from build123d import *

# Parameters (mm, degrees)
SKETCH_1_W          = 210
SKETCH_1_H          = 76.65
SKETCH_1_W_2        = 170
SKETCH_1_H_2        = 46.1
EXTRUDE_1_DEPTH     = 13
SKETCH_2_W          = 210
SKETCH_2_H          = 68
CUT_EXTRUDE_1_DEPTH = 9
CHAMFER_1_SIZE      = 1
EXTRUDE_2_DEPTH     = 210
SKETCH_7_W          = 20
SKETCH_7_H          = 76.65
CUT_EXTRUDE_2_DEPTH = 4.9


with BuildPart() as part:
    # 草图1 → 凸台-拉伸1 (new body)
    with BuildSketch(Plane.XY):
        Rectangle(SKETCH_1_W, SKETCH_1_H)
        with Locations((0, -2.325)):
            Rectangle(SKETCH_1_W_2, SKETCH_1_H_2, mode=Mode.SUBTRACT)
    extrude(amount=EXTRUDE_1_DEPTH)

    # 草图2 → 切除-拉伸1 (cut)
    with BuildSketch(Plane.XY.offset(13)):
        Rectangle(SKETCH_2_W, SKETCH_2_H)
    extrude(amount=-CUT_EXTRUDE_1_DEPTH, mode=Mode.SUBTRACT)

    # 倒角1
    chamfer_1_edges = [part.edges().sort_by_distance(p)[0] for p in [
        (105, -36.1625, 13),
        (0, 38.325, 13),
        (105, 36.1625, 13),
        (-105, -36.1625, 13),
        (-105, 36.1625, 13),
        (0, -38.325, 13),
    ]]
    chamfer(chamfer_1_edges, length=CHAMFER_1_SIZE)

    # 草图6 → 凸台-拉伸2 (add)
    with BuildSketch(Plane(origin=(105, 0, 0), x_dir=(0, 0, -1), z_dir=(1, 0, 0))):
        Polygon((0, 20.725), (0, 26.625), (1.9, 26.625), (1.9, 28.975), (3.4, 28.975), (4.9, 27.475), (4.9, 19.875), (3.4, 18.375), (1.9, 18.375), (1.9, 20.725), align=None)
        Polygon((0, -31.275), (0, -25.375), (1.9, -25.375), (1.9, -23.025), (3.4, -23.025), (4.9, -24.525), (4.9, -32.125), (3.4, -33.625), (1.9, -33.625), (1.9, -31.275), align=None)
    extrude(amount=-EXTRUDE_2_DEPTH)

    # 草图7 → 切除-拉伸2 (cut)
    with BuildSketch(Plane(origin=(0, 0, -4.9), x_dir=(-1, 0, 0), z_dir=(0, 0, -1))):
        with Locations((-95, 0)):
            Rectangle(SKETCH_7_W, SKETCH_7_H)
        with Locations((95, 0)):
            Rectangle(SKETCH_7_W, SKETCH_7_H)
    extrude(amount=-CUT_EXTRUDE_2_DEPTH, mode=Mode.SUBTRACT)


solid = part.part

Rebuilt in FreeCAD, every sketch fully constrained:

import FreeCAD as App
import Part
import Sketcher
Q = App.Units.Quantity


def edges_at(feature, points):
    """Names of the edges that pass closest to the given points."""
    edges = feature.Shape.Edges
    near = lambda p: min(range(len(edges)), key=lambda i: edges[i].distToShape(Part.Vertex(*p))[0])
    return sorted({f"Edge{near(p) + 1}" for p in points})

doc = App.newDocument("Part")
body = doc.addObject("PartDesign::Body", "Body")

# Sketch on XY plane
sketch1 = doc.addObject("Sketcher::SketchObject", "Sketch")
body.addObject(sketch1)
sketch1.AttachmentSupport = (doc.XY_Plane, [""])
sketch1.MapMode = "FlatFace"
sketch1.addGeometry(Part.LineSegment(App.Vector(-105, 38, 0), App.Vector(-105, -38, 0)), False)
sketch1.addGeometry(Part.LineSegment(App.Vector(-105, -38, 0), App.Vector(105, -38, 0)), False)
sketch1.addGeometry(Part.LineSegment(App.Vector(105, -38, 0), App.Vector(105, 38, 0)), False)
sketch1.addGeometry(Part.LineSegment(App.Vector(105, 38, 0), App.Vector(-105, 38, 0)), False)
sketch1.addGeometry(Part.LineSegment(App.Vector(85, -25, 0), App.Vector(-85, -25, 0)), False)
sketch1.addGeometry(Part.LineSegment(App.Vector(-85, -25, 0), App.Vector(-85, 21, 0)), False)
sketch1.addGeometry(Part.LineSegment(App.Vector(-85, 21, 0), App.Vector(85, 21, 0)), False)
sketch1.addGeometry(Part.LineSegment(App.Vector(85, 21, 0), App.Vector(85, -25, 0)), False)
sketch1.addConstraint(Sketcher.Constraint("Coincident", 0, 2, 1, 1))
sketch1.addConstraint(Sketcher.Constraint("Coincident", 1, 2, 2, 1))
sketch1.addConstraint(Sketcher.Constraint("Coincident", 2, 2, 3, 1))
sketch1.addConstraint(Sketcher.Constraint("Coincident", 3, 2, 0, 1))
sketch1.addConstraint(Sketcher.Constraint("Coincident", 4, 2, 5, 1))
sketch1.addConstraint(Sketcher.Constraint("Coincident", 5, 2, 6, 1))
sketch1.addConstraint(Sketcher.Constraint("Coincident", 6, 2, 7, 1))
sketch1.addConstraint(Sketcher.Constraint("Coincident", 7, 2, 4, 1))
sketch1.addConstraint(Sketcher.Constraint("Vertical", 0))
sketch1.addConstraint(Sketcher.Constraint("Horizontal", 1))
sketch1.addConstraint(Sketcher.Constraint("Vertical", 2))
sketch1.addConstraint(Sketcher.Constraint("Horizontal", 3))
sketch1.addConstraint(Sketcher.Constraint("Horizontal", 4))
sketch1.addConstraint(Sketcher.Constraint("Vertical", 5))
sketch1.addConstraint(Sketcher.Constraint("Horizontal", 6))
sketch1.addConstraint(Sketcher.Constraint("Vertical", 7))
sketch1.addConstraint(Sketcher.Constraint("Symmetric", 0, 2, 2, 2, -1, 1))
sketch1.addConstraint(Sketcher.Constraint("DistanceX", 1, 1, 1, 2, Q("210 mm")))
sketch1.addConstraint(Sketcher.Constraint("DistanceX", 4, 2, 4, 1, Q("170 mm")))
sketch1.addConstraint(Sketcher.Constraint("DistanceY", 5, 1, 5, 2, Q("46.1 mm")))
sketch1.addConstraint(Sketcher.Constraint("DistanceX", 4, 2, -1, 1, Q("85 mm")))
sketch1.addConstraint(Sketcher.Constraint("DistanceY", 0, 2, 0, 1, Q("76.65 mm")))
sketch1.addConstraint(Sketcher.Constraint("DistanceY", 4, 2, 3, 2, Q("63.7 mm")))
pad1 = doc.addObject("PartDesign::Pad", "Pad")
body.addObject(pad1)
pad1.Profile = sketch1
pad1.Length = 13

# Sketch on XY plane
sketch2 = doc.addObject("Sketcher::SketchObject", "Sketch001")
body.addObject(sketch2)
sketch2.AttachmentSupport = (doc.XY_Plane, [""])
sketch2.MapMode = "FlatFace"
sketch2.AttachmentOffset = App.Placement(App.Vector(0, 0, 13), App.Rotation())
sketch2.addGeometry(Part.LineSegment(App.Vector(-105, 34, 0), App.Vector(-105, -34, 0)), False)
sketch2.addGeometry(Part.LineSegment(App.Vector(-105, -34, 0), App.Vector(105, -34, 0)), False)
sketch2.addGeometry(Part.LineSegment(App.Vector(105, -34, 0), App.Vector(105, 34, 0)), False)
sketch2.addGeometry(Part.LineSegment(App.Vector(105, 34, 0), App.Vector(-105, 34, 0)), False)
sketch2.addConstraint(Sketcher.Constraint("Coincident", 0, 2, 1, 1))
sketch2.addConstraint(Sketcher.Constraint("Coincident", 1, 2, 2, 1))
sketch2.addConstraint(Sketcher.Constraint("Coincident", 2, 2, 3, 1))
sketch2.addConstraint(Sketcher.Constraint("Coincident", 3, 2, 0, 1))
sketch2.addConstraint(Sketcher.Constraint("Vertical", 0))
sketch2.addConstraint(Sketcher.Constraint("Horizontal", 1))
sketch2.addConstraint(Sketcher.Constraint("Vertical", 2))
sketch2.addConstraint(Sketcher.Constraint("Horizontal", 3))
sketch2.addConstraint(Sketcher.Constraint("Symmetric", 0, 2, 2, 2, -1, 1))
sketch2.addConstraint(Sketcher.Constraint("DistanceX", 1, 1, 1, 2, Q("210 mm")))
sketch2.addConstraint(Sketcher.Constraint("DistanceY", 0, 2, 0, 1, Q("68 mm")))
pocket1 = doc.addObject("PartDesign::Pocket", "Pocket")
body.addObject(pocket1)
pocket1.Profile = sketch2
pocket1.Length = 9
doc.recompute()

chamfer = doc.addObject("PartDesign::Chamfer", "Chamfer")
body.addObject(chamfer)
chamfer.Base = (pocket1, edges_at(pocket1, [
    (105, -36.163, 13),
    (0, 38.325, 13),
    (105, 36.163, 13),
    (-105, -36.163, 13),
    (-105, 36.163, 13),
    (0, -38.325, 13),
]))
chamfer.Size = 1

# Sketch on YZ plane
sketch3 = doc.addObject("Sketcher::SketchObject", "Sketch002")
body.addObject(sketch3)
sketch3.AttachmentSupport = (doc.YZ_Plane, [""])
sketch3.MapMode = "FlatFace"
sketch3.AttachmentOffset = App.Placement(App.Vector(0, 0, 105), App.Rotation())
sketch3.addGeometry(Part.LineSegment(App.Vector(26.6, 0, 0), App.Vector(20.7, 0, 0)), False)
sketch3.addGeometry(Part.LineSegment(App.Vector(20.7, 0, 0), App.Vector(20.7, -1.9, 0)), False)
sketch3.addGeometry(Part.LineSegment(App.Vector(20.7, -1.9, 0), App.Vector(18.4, -1.9, 0)), False)
sketch3.addGeometry(Part.LineSegment(App.Vector(18.4, -1.9, 0), App.Vector(18.4, -3.4, 0)), False)
sketch3.addGeometry(Part.LineSegment(App.Vector(18.4, -3.4, 0), App.Vector(19.9, -4.9, 0)), False)
sketch3.addGeometry(Part.LineSegment(App.Vector(19.9, -4.9, 0), App.Vector(27.5, -4.9, 0)), False)
sketch3.addGeometry(Part.LineSegment(App.Vector(27.5, -4.9, 0), App.Vector(29, -3.4, 0)), False)
sketch3.addGeometry(Part.LineSegment(App.Vector(29, -3.4, 0), App.Vector(29, -1.9, 0)), False)
sketch3.addGeometry(Part.LineSegment(App.Vector(29, -1.9, 0), App.Vector(26.6, -1.9, 0)), False)
sketch3.addGeometry(Part.LineSegment(App.Vector(26.6, -1.9, 0), App.Vector(26.6, 0, 0)), False)
sketch3.addGeometry(Part.LineSegment(App.Vector(-25.4, 0, 0), App.Vector(-31.3, 0, 0)), False)
sketch3.addGeometry(Part.LineSegment(App.Vector(-31.3, 0, 0), App.Vector(-31.3, -1.9, 0)), False)
sketch3.addGeometry(Part.LineSegment(App.Vector(-31.3, -1.9, 0), App.Vector(-33.6, -1.9, 0)), False)
sketch3.addGeometry(Part.LineSegment(App.Vector(-33.6, -1.9, 0), App.Vector(-33.6, -3.4, 0)), False)
sketch3.addGeometry(Part.LineSegment(App.Vector(-33.6, -3.4, 0), App.Vector(-32.1, -4.9, 0)), False)
sketch3.addGeometry(Part.LineSegment(App.Vector(-32.1, -4.9, 0), App.Vector(-24.5, -4.9, 0)), False)
sketch3.addGeometry(Part.LineSegment(App.Vector(-24.5, -4.9, 0), App.Vector(-23, -3.4, 0)), False)
sketch3.addGeometry(Part.LineSegment(App.Vector(-23, -3.4, 0), App.Vector(-23, -1.9, 0)), False)
sketch3.addGeometry(Part.LineSegment(App.Vector(-23, -1.9, 0), App.Vector(-25.4, -1.9, 0)), False)
sketch3.addGeometry(Part.LineSegment(App.Vector(-25.4, -1.9, 0), App.Vector(-25.4, 0, 0)), False)
sketch3.addConstraint(Sketcher.Constraint("Coincident", 0, 2, 1, 1))
sketch3.addConstraint(Sketcher.Constraint("Coincident", 1, 2, 2, 1))
sketch3.addConstraint(Sketcher.Constraint("Coincident", 2, 2, 3, 1))
sketch3.addConstraint(Sketcher.Constraint("Coincident", 3, 2, 4, 1))
sketch3.addConstraint(Sketcher.Constraint("Coincident", 4, 2, 5, 1))
sketch3.addConstraint(Sketcher.Constraint("Coincident", 5, 2, 6, 1))
sketch3.addConstraint(Sketcher.Constraint("Coincident", 6, 2, 7, 1))
sketch3.addConstraint(Sketcher.Constraint("Coincident", 7, 2, 8, 1))
sketch3.addConstraint(Sketcher.Constraint("Coincident", 8, 2, 9, 1))
sketch3.addConstraint(Sketcher.Constraint("Coincident", 9, 2, 0, 1))
sketch3.addConstraint(Sketcher.Constraint("Coincident", 10, 2, 11, 1))
sketch3.addConstraint(Sketcher.Constraint("Coincident", 11, 2, 12, 1))
sketch3.addConstraint(Sketcher.Constraint("Coincident", 12, 2, 13, 1))
sketch3.addConstraint(Sketcher.Constraint("Coincident", 13, 2, 14, 1))
sketch3.addConstraint(Sketcher.Constraint("Coincident", 14, 2, 15, 1))
sketch3.addConstraint(Sketcher.Constraint("Coincident", 15, 2, 16, 1))
sketch3.addConstraint(Sketcher.Constraint("Coincident", 16, 2, 17, 1))
sketch3.addConstraint(Sketcher.Constraint("Coincident", 17, 2, 18, 1))
sketch3.addConstraint(Sketcher.Constraint("Coincident", 18, 2, 19, 1))
sketch3.addConstraint(Sketcher.Constraint("Coincident", 19, 2, 10, 1))
sketch3.addConstraint(Sketcher.Constraint("Horizontal", 0))
sketch3.addConstraint(Sketcher.Constraint("Vertical", 1))
sketch3.addConstraint(Sketcher.Constraint("Horizontal", 2))
sketch3.addConstraint(Sketcher.Constraint("Vertical", 3))
sketch3.addConstraint(Sketcher.Constraint("Horizontal", 5))
sketch3.addConstraint(Sketcher.Constraint("Vertical", 7))
sketch3.addConstraint(Sketcher.Constraint("Horizontal", 8))
sketch3.addConstraint(Sketcher.Constraint("Vertical", 9))
sketch3.addConstraint(Sketcher.Constraint("Horizontal", 10))
sketch3.addConstraint(Sketcher.Constraint("Vertical", 11))
sketch3.addConstraint(Sketcher.Constraint("Horizontal", 12))
sketch3.addConstraint(Sketcher.Constraint("Vertical", 13))
sketch3.addConstraint(Sketcher.Constraint("Horizontal", 15))
sketch3.addConstraint(Sketcher.Constraint("Vertical", 17))
sketch3.addConstraint(Sketcher.Constraint("Horizontal", 18))
sketch3.addConstraint(Sketcher.Constraint("Vertical", 19))
sketch3.addConstraint(Sketcher.Constraint("PointOnObject", 0, 2, -1))
sketch3.addConstraint(Sketcher.Constraint("PointOnObject", 10, 2, -1))
sketch3.addConstraint(Sketcher.Constraint("Perpendicular", 4, 6))
sketch3.addConstraint(Sketcher.Constraint("Perpendicular", 6, 14))
sketch3.addConstraint(Sketcher.Constraint("Perpendicular", 14, 16))
sketch3.addConstraint(Sketcher.Constraint("Horizontal", 3, 2, 6, 2))
sketch3.addConstraint(Sketcher.Constraint("Horizontal", 2, 2, 7, 2))
sketch3.addConstraint(Sketcher.Constraint("Horizontal", 8, 2, 11, 2))
sketch3.addConstraint(Sketcher.Constraint("Horizontal", 6, 2, 13, 2))
sketch3.addConstraint(Sketcher.Constraint("Horizontal", 5, 2, 14, 2))
sketch3.addConstraint(Sketcher.Constraint("Horizontal", 13, 2, 16, 2))
sketch3.addConstraint(Sketcher.Constraint("Horizontal", 12, 2, 17, 2))
sketch3.addConstraint(Sketcher.Constraint("Equal", 2, 8))
sketch3.addConstraint(Sketcher.Constraint("Equal", 0, 10))
sketch3.addConstraint(Sketcher.Constraint("Equal", 8, 12))
sketch3.addConstraint(Sketcher.Constraint("Equal", 5, 15))
sketch3.addConstraint(Sketcher.Constraint("Equal", 4, 6))
sketch3.addConstraint(Sketcher.Constraint("DistanceX", 0, 2, 0, 1, Q("5.9 mm")))
sketch3.addConstraint(Sketcher.Constraint("DistanceX", 5, 1, 5, 2, Q("7.6 mm")))
sketch3.addConstraint(Sketcher.Constraint("DistanceY", 1, 2, 1, 1, Q("1.9 mm")))
sketch3.addConstraint(Sketcher.Constraint("DistanceY", 3, 2, 3, 1, Q("1.5 mm")))
sketch3.addConstraint(Sketcher.Constraint("DistanceY", 4, 2, 1, 2, Q("3 mm")))
sketch3.addConstraint(Sketcher.Constraint("DistanceX", 10, 2, 0, 2, Q("52 mm")))
sketch3.addConstraint(Sketcher.Constraint("DistanceX", -1, 1, 0, 2, Q("20.725 mm")))
pad2 = doc.addObject("PartDesign::Pad", "Pad001")
body.addObject(pad2)
pad2.Profile = sketch3
pad2.Length = 210
pad2.Reversed = True

# Sketch on XY plane
sketch4 = doc.addObject("Sketcher::SketchObject", "Sketch003")
body.addObject(sketch4)
sketch4.AttachmentSupport = (doc.XY_Plane, [""])
sketch4.MapMode = "FlatFace"
sketch4.AttachmentOffset = App.Placement(App.Vector(0, 0, -4.9), App.Rotation())
sketch4.addGeometry(Part.LineSegment(App.Vector(105, 38, 0), App.Vector(105, -38, 0)), False)
sketch4.addGeometry(Part.LineSegment(App.Vector(105, -38, 0), App.Vector(85, -38, 0)), False)
sketch4.addGeometry(Part.LineSegment(App.Vector(85, -38, 0), App.Vector(85, 38, 0)), False)
sketch4.addGeometry(Part.LineSegment(App.Vector(85, 38, 0), App.Vector(105, 38, 0)), False)
sketch4.addGeometry(Part.LineSegment(App.Vector(-85, 38, 0), App.Vector(-85, -38, 0)), False)
sketch4.addGeometry(Part.LineSegment(App.Vector(-85, -38, 0), App.Vector(-105, -38, 0)), False)
sketch4.addGeometry(Part.LineSegment(App.Vector(-105, -38, 0), App.Vector(-105, 38, 0)), False)
sketch4.addGeometry(Part.LineSegment(App.Vector(-105, 38, 0), App.Vector(-85, 38, 0)), False)
sketch4.addConstraint(Sketcher.Constraint("Coincident", 0, 2, 1, 1))
sketch4.addConstraint(Sketcher.Constraint("Coincident", 1, 2, 2, 1))
sketch4.addConstraint(Sketcher.Constraint("Coincident", 2, 2, 3, 1))
sketch4.addConstraint(Sketcher.Constraint("Coincident", 3, 2, 0, 1))
sketch4.addConstraint(Sketcher.Constraint("Coincident", 4, 2, 5, 1))
sketch4.addConstraint(Sketcher.Constraint("Coincident", 5, 2, 6, 1))
sketch4.addConstraint(Sketcher.Constraint("Coincident", 6, 2, 7, 1))
sketch4.addConstraint(Sketcher.Constraint("Coincident", 7, 2, 4, 1))
sketch4.addConstraint(Sketcher.Constraint("Vertical", 0))
sketch4.addConstraint(Sketcher.Constraint("Horizontal", 1))
sketch4.addConstraint(Sketcher.Constraint("Vertical", 2))
sketch4.addConstraint(Sketcher.Constraint("Horizontal", 3))
sketch4.addConstraint(Sketcher.Constraint("Vertical", 4))
sketch4.addConstraint(Sketcher.Constraint("Horizontal", 5))
sketch4.addConstraint(Sketcher.Constraint("Vertical", 6))
sketch4.addConstraint(Sketcher.Constraint("Horizontal", 7))
sketch4.addConstraint(Sketcher.Constraint("Symmetric", 2, 2, 4, 2, -1, 1))
sketch4.addConstraint(Sketcher.Constraint("Symmetric", 0, 2, 6, 2, -1, 1))
sketch4.addConstraint(Sketcher.Constraint("Horizontal", 1, 2, 4, 2))
sketch4.addConstraint(Sketcher.Constraint("DistanceX", 1, 2, 1, 1, Q("20 mm")))
sketch4.addConstraint(Sketcher.Constraint("DistanceX", -1, 1, 0, 2, Q("105 mm")))
sketch4.addConstraint(Sketcher.Constraint("DistanceY", 0, 2, 0, 1, Q("76.65 mm")))
pocket2 = doc.addObject("PartDesign::Pocket", "Pocket001")
body.addObject(pocket2)
pocket2.Profile = sketch4
pocket2.Length = 4.9
pocket2.Reversed = True

doc.recompute()
